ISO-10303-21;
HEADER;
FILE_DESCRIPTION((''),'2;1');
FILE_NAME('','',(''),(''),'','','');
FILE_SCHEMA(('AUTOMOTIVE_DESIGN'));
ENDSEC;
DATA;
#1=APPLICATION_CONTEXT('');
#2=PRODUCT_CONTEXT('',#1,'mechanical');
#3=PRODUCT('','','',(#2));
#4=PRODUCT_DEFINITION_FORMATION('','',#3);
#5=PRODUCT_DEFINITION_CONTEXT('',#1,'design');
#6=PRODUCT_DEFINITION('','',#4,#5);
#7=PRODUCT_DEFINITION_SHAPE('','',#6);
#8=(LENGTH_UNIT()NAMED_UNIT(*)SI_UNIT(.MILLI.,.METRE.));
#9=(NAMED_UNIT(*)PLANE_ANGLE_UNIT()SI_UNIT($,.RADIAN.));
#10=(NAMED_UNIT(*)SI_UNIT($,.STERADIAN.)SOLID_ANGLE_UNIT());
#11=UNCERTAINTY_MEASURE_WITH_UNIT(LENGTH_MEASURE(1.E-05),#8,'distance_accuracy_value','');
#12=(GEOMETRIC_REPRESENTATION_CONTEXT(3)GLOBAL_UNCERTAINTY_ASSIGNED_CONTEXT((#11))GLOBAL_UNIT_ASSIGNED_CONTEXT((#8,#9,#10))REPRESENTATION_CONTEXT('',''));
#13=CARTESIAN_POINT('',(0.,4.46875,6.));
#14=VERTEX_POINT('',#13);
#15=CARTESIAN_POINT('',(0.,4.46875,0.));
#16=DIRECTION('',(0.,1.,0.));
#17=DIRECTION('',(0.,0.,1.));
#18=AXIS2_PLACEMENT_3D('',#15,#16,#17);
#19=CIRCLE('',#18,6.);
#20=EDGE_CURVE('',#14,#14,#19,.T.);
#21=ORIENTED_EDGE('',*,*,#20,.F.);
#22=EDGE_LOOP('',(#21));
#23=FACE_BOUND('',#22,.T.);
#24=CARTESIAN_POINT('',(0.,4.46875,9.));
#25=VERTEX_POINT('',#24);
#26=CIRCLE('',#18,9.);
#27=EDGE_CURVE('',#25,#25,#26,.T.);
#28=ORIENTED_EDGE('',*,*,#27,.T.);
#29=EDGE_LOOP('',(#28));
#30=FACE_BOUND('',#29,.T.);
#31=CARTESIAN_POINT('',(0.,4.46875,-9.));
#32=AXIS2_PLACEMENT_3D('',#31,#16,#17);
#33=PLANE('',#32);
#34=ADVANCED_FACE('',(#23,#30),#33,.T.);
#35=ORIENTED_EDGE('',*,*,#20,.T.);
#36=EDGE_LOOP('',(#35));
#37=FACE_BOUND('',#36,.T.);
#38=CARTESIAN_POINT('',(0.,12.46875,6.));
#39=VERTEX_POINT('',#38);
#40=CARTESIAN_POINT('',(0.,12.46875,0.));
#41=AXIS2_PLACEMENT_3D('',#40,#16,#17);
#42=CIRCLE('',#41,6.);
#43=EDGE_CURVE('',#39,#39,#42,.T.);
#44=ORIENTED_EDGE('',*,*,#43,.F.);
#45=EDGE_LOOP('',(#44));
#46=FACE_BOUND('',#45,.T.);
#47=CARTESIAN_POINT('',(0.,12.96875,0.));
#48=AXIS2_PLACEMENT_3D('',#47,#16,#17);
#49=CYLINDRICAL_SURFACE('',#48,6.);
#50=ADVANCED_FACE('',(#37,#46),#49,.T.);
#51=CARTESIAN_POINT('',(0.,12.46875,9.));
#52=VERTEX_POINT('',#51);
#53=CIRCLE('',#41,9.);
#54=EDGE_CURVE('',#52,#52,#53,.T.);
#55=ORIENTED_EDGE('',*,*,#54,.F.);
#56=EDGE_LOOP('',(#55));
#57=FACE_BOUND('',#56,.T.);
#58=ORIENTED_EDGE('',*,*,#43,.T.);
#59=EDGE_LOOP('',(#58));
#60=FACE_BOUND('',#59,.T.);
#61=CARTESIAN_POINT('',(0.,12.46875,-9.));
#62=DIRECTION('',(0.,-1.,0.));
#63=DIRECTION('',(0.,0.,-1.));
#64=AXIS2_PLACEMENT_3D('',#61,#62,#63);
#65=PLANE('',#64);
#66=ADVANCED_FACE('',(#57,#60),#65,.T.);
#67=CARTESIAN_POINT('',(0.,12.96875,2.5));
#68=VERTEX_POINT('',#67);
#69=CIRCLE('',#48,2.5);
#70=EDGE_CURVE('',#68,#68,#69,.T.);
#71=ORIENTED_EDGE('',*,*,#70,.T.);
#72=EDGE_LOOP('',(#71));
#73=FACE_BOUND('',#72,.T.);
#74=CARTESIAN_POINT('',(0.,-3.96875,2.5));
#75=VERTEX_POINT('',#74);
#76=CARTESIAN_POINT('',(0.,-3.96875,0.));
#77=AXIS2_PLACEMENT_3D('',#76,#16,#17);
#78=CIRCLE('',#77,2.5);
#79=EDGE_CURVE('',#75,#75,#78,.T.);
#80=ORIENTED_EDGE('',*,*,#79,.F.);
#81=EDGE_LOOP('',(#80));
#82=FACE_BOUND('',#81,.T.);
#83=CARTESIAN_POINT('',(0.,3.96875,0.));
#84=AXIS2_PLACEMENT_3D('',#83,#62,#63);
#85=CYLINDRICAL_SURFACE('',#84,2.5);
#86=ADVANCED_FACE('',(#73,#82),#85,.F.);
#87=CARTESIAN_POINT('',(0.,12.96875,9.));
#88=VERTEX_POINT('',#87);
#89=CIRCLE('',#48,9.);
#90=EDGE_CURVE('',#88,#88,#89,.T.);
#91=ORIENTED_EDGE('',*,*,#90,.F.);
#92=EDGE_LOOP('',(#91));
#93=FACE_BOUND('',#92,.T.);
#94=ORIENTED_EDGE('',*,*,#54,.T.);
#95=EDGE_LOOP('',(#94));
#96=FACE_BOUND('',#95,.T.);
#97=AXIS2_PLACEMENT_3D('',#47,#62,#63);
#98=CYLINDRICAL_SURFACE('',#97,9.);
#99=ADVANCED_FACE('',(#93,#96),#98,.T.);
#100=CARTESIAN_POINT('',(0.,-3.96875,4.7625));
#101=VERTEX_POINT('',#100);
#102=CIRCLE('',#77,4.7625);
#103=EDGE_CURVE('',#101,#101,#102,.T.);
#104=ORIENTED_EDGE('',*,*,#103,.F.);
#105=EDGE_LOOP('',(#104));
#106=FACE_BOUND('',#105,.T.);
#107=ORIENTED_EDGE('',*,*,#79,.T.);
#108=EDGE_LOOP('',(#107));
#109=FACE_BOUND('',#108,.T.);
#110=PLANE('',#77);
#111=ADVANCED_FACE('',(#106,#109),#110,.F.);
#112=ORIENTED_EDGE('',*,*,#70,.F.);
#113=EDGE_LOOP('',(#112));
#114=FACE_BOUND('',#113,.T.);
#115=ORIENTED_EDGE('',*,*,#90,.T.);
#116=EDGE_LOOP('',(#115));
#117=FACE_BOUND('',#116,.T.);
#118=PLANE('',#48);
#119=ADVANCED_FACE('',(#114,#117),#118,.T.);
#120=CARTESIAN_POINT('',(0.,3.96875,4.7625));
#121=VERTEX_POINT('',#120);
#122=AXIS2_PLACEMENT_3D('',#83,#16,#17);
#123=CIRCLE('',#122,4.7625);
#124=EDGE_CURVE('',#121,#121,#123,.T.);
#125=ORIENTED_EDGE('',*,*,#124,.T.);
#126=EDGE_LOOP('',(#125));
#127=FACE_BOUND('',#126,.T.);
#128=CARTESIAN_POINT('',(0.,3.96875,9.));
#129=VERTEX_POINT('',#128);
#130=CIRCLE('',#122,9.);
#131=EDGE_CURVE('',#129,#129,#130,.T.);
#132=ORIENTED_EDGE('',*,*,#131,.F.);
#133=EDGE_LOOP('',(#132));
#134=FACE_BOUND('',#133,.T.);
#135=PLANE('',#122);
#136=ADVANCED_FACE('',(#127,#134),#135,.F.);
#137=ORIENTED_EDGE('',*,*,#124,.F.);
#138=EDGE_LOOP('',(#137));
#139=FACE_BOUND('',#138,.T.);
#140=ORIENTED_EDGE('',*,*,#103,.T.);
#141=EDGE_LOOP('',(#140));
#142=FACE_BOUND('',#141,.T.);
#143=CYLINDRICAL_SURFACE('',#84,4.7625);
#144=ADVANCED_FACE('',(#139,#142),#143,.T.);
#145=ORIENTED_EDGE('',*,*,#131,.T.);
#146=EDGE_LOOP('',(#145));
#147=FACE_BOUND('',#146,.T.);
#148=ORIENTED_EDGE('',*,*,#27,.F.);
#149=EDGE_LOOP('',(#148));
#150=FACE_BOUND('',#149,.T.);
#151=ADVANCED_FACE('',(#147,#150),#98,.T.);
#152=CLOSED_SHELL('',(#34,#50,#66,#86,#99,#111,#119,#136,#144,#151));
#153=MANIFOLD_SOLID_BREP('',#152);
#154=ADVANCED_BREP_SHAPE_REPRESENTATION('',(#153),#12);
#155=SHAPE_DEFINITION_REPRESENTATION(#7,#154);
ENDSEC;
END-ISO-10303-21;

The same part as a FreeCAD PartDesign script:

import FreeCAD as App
import Part
import Sketcher
from FreeCAD import Vector
Q = App.Units.Quantity

doc = App.newDocument("Part")
body = doc.addObject("PartDesign::Body", "Body")

# Sketch on XZ plane
sketch1 = body.newObject("Sketcher::SketchObject", "Sketch")
sketch1.AttachmentSupport = (doc.getObject("XZ_Plane"), [""])
sketch1.MapMode = "FlatFace"
sketch1.addGeometry(Part.Circle(Vector(0, 0, 0), Vector(0, 0, 1), 4.8), False)
sketch1.addGeometry(Part.Circle(Vector(0, 0, 0), Vector(0, 0, 1), 2.5), False)
sketch1.addConstraint(Sketcher.Constraint("Coincident", 0, 3, -1, 1))
sketch1.addConstraint(Sketcher.Constraint("Coincident", 1, 3, -1, 1))
sketch1.addConstraint(Sketcher.Constraint("Diameter", 1, Q("5 mm")))
sketch1.addConstraint(Sketcher.Constraint("Diameter", 0, Q("9.525 mm")))
pad1 = body.newObject("PartDesign::Pad", "Pad")
pad1.Profile = sketch1
pad1.Length = 7.9375
pad1.Midplane = True

# Sketch on XZ plane
sketch2 = body.newObject("Sketcher::SketchObject", "Sketch001")
sketch2.AttachmentSupport = (doc.getObject("XZ_Plane"), [""])
sketch2.MapMode = "FlatFace"
sketch2.AttachmentOffset = App.Placement(Vector(0, 0, -3.96875), App.Rotation())
sketch2.addGeometry(Part.Circle(Vector(0, 0, 0), Vector(0, 0, 1), 9), False)
sketch2.addGeometry(Part.Circle(Vector(0, 0, 0), Vector(0, 0, 1), 2.5), False)
sketch2.addConstraint(Sketcher.Constraint("Coincident", 0, 3, -1, 1))
sketch2.addConstraint(Sketcher.Constraint("Coincident", 1, 3, -1, 1))
sketch2.addConstraint(Sketcher.Constraint("Diameter", 0, Q("18 mm")))
sketch2.addConstraint(Sketcher.Constraint("Diameter", 1, Q("5 mm")))
pad2 = body.newObject("PartDesign::Pad", "Pad001")
pad2.Profile = sketch2
pad2.Length = 9
pad2.Reversed = True

# Sketch on YZ plane
sketch3 = body.newObject("Sketcher::SketchObject", "Sketch002")
sketch3.AttachmentSupport = (doc.getObject("YZ_Plane"), [""])
sketch3.MapMode = "FlatFace"
sketch3.addGeometry(Part.LineSegment(Vector(12.5, -6, 0), Vector(4.5, -6, 0)), False)
sketch3.addGeometry(Part.LineSegment(Vector(4.5, -6, 0), Vector(4.5, -9, 0)), False)
sketch3.addGeometry(Part.LineSegment(Vector(4.5, -9, 0), Vector(12.5, -9, 0)), False)
sketch3.addGeometry(Part.LineSegment(Vector(12.5, -9, 0), Vector(12.5, -6, 0)), False)
sketch3.addConstraint(Sketcher.Constraint("Coincident", 0, 2, 1, 1))
sketch3.addConstraint(Sketcher.Constraint("Coincident", 1, 2, 2, 1))
sketch3.addConstraint(Sketcher.Constraint("Coincident", 2, 2, 3, 1))
sketch3.addConstraint(Sketcher.Constraint("Coincident", 3, 2, 0, 1))
sketch3.addConstraint(Sketcher.Constraint("Horizontal", 0))
sketch3.addConstraint(Sketcher.Constraint("Vertical", 1))
sketch3.addConstraint(Sketcher.Constraint("Horizontal", 2))
sketch3.addConstraint(Sketcher.Constraint("Vertical", 3))
sketch3.addConstraint(Sketcher.Constraint("DistanceX", 0, 2, 0, 1, Q("8 mm")))
sketch3.addConstraint(Sketcher.Constraint("DistanceY", 1, 2, 1, 1, Q("3 mm")))
sketch3.addConstraint(Sketcher.Constraint("DistanceY", 0, 2, -1, 1, Q("6 mm")))
sketch3.addConstraint(Sketcher.Constraint("DistanceX", -1, 1, 0, 2, Q("4.46875 mm")))
groove = body.newObject("PartDesign::Groove", "Groove")
groove.Profile = sketch3
groove.ReferenceAxis = (sketch3, ["H_Axis"])
groove.Angle = 360

doc.recompute()
